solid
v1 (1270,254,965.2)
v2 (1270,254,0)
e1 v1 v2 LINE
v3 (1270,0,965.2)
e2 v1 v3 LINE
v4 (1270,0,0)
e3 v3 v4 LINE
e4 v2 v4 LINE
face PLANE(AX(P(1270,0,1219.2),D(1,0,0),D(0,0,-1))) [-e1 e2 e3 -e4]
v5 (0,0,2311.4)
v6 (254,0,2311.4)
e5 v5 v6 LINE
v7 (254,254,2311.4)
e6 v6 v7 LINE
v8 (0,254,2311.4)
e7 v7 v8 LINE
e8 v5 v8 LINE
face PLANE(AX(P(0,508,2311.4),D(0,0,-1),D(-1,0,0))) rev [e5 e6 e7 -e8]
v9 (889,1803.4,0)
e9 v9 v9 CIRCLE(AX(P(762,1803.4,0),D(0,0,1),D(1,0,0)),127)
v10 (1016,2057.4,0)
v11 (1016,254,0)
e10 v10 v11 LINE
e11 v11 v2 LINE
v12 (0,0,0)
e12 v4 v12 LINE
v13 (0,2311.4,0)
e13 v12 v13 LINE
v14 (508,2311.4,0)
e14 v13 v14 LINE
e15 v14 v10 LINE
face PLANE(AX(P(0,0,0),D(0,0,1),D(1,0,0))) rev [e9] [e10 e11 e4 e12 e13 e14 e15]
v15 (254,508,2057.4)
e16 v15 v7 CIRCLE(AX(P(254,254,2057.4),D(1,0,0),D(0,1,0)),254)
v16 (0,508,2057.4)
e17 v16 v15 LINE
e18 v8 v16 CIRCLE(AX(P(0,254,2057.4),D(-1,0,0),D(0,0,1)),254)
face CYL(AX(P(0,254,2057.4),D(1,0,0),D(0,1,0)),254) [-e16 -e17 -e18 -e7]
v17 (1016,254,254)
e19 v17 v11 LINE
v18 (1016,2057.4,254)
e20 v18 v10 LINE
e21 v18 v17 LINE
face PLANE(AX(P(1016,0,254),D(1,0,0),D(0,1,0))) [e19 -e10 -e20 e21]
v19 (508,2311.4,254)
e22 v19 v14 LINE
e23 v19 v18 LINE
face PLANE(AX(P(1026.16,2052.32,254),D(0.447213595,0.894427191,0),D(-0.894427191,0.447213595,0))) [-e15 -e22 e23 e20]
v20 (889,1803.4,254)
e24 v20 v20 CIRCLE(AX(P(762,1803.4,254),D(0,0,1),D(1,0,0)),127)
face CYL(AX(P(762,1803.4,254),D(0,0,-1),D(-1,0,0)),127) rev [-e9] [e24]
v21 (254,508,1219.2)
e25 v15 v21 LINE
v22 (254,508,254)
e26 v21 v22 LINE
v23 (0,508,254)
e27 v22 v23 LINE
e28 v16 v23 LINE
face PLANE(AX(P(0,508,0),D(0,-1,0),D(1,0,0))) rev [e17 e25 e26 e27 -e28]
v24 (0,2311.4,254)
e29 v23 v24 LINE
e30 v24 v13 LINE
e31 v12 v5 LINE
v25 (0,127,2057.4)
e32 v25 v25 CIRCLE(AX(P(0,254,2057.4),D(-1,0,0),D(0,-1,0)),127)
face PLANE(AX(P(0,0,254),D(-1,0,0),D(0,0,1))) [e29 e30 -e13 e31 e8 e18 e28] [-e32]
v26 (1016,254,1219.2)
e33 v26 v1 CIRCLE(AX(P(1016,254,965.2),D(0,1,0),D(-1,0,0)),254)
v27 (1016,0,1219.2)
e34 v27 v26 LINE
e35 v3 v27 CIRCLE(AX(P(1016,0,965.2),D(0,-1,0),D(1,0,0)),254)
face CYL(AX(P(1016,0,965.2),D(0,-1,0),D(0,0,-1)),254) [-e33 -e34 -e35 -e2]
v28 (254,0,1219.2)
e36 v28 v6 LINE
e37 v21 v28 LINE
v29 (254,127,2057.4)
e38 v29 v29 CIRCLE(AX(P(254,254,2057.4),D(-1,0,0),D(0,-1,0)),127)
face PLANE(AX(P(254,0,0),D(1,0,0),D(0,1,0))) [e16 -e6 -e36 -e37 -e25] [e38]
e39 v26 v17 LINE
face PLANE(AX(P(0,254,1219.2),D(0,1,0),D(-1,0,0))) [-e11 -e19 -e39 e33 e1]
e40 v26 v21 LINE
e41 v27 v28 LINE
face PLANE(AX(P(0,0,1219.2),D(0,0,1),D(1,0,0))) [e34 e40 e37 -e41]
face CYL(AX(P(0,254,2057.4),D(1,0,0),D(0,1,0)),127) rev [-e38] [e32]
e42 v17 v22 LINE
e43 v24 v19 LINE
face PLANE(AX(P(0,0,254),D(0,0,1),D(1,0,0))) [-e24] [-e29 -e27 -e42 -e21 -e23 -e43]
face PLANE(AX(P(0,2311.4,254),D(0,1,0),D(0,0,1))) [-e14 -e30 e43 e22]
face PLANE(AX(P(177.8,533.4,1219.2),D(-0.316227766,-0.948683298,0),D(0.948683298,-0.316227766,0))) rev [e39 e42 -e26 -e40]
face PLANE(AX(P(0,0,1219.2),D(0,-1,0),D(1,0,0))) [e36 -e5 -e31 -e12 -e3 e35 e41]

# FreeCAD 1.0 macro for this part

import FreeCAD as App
import Part
import Sketcher

V = App.Vector
Q = App.Units.Quantity


def edges_at(feature, points):
    """Names of the edges that pass closest to the given points."""
    edges = feature.Shape.Edges
    near = lambda p: min(range(len(edges)), key=lambda i: edges[i].distToShape(Part.Vertex(*p))[0])
    return sorted({f"Edge{near(p) + 1}" for p in points})


def add_polygon(sketch, points):
    """Adds a closed chain of lines whose ends are joined by coincident constraints."""
    first, n = sketch.GeometryCount, len(points)
    for a, b in zip(points, points[1:] + points[:1]):
        sketch.addGeometry(Part.LineSegment(App.Vector(*a, 0), App.Vector(*b, 0)), False)
    for i in range(n):
        sketch.addConstraint(Sketcher.Constraint("Coincident", first + i, 2, first + (i + 1) % n, 1))

doc = App.newDocument("Part")
params = doc.addObject("Spreadsheet::Sheet", "Params")
for row, (alias, value) in enumerate([
    ("sketch1_diameter", "10 in"),
    ("sketch1_width", "10 in"),
    ("sketch1_width2", "20 in"),
    ("sketch1_height", "71 in"),
    ("pad1_length", "10 in"),
    ("sketch2_width", "40 in"),
    ("sketch2_width2", "10 in"),
    ("sketch2_height", "20 in"),
    ("pad2_length", "48 in"),
    ("fillet_radius", "10 in"),
    ("sketch3_diameter", "10 in"),
    ("sketch3_width", "20 in"),
    ("sketch3_height", "91 in"),
    ("pad3_length", "10 in"),
    ("fillet2_radius", "10 in"),
], start=1):
    params.set(f"A{row}", alias)
    params.set(f"B{row}", "=" + value)
    params.setAlias(f"B{row}", alias)

body = doc.addObject("PartDesign::Body", "Body")

sketch1 = body.newObject("Sketcher::SketchObject", "Sketch")
sketch1.AttachmentSupport = (doc.getObject("XY_Plane"), [""])
sketch1.MapMode = "FlatFace"
add_polygon(sketch1, [(0, 2311), (0, 508), (254, 508), (1016, 254), (1016, 2057), (508, 2311)])
sketch1.addGeometry(Part.Circle(V(762, 1803, 0), V(0, 0, 1), 127), False)
sketch1.addConstraint([
    Sketcher.Constraint("Vertical", 0),
    Sketcher.Constraint("Horizontal", 1),
    Sketcher.Constraint("Vertical", 3),
    Sketcher.Constraint("Horizontal", 5),
    Sketcher.Constraint("PointOnObject", 0, 2, -2),
    Sketcher.Constraint("Equal", 0, 3),
    Sketcher.Constraint("Diameter", 6, Q("10 in")),
    Sketcher.Constraint("DistanceX", 1, 1, 1, 2, Q("10 in")),
    Sketcher.Constraint("DistanceX", 5, 2, 5, 1, Q("20 in")),
    Sketcher.Constraint("DistanceY", 0, 2, 0, 1, Q("71 in")),
    Sketcher.Constraint("DistanceX", -1, 1, 6, 3, Q("30 in")),
    Sketcher.Constraint("DistanceY", -1, 1, 6, 3, Q("71 in")),
    Sketcher.Constraint("DistanceY", -1, 1, 0, 2, Q("20 in")),
    Sketcher.Constraint("DistanceX", -1, 1, 2, 2, Q("40 in")),
    Sketcher.Constraint("DistanceY", -1, 1, 2, 2, Q("10 in")),
])
sketch1.setExpression("Constraints[12]", "Params.sketch1_diameter")
sketch1.setExpression("Constraints[13]", "Params.sketch1_width")
sketch1.setExpression("Constraints[14]", "Params.sketch1_width2")
sketch1.setExpression("Constraints[15]", "Params.sketch1_height")
pad1 = body.newObject("PartDesign::Pad", "Pad")
pad1.Profile = sketch1
pad1.setExpression("Length", "Params.pad1_length")

sketch2 = body.newObject("Sketcher::SketchObject", "Sketch001")
sketch2.AttachmentSupport = (doc.getObject("XY_Plane"), [""])
sketch2.MapMode = "FlatFace"
add_polygon(sketch2, [(254, 508), (254, 0), (1270, 0), (1270, 254), (1016, 254)])
sketch2.addConstraint([
    Sketcher.Constraint("Vertical", 0),
    Sketcher.Constraint("Horizontal", 1),
    Sketcher.Constraint("Vertical", 2),
    Sketcher.Constraint("Horizontal", 3),
    Sketcher.Constraint("PointOnObject", 0, 2, -1),
    Sketcher.Constraint("Equal", 3, 2),
    Sketcher.Constraint("DistanceX", 1, 1, 1, 2, Q("40 in")),
    Sketcher.Constraint("DistanceX", 3, 2, 3, 1, Q("10 in")),
    Sketcher.Constraint("DistanceY", 0, 2, 0, 1, Q("20 in")),
    Sketcher.Constraint("DistanceX", -1, 1, 0, 2, Q("10 in")),
])
sketch2.setExpression("Constraints[11]", "Params.sketch2_width")
sketch2.setExpression("Constraints[12]", "Params.sketch2_width2")
sketch2.setExpression("Constraints[13]", "Params.sketch2_height")
pad2 = body.newObject("PartDesign::Pad", "Pad001")
pad2.Profile = sketch2
pad2.setExpression("Length", "Params.pad2_length")
doc.recompute()

fillet = body.newObject("PartDesign::Fillet", "Fillet")
fillet.Base = (pad2, edges_at(pad2, [(1270, 127, 1219.2)]))
fillet.setExpression("Radius", "Params.fillet_radius")

sketch3 = body.newObject("Sketcher::SketchObject", "Sketch002")
sketch3.AttachmentSupport = (doc.getObject("YZ_Plane"), [""])
sketch3.MapMode = "FlatFace"
sketch3.AttachmentOffset = App.Placement(V(0, 0, 10 * 25.4), App.Rotation())
add_polygon(sketch3, [(508, 0), (0, 0), (0, 2311), (508, 2311)])
sketch3.addGeometry(Part.Circle(V(254, 2057, 0), V(0, 0, 1), 127), False)
sketch3.addConstraint([
    Sketcher.Constraint("Horizontal", 0),
    Sketcher.Constraint("Vertical", 1),
    Sketcher.Constraint("Horizontal", 2),
    Sketcher.Constraint("Vertical", 3),
    Sketcher.Constraint("Coincident", 0, 2, -1, 1),
    Sketcher.Constraint("Diameter", 4, Q("10 in")),
    Sketcher.Constraint("DistanceX", 0, 2, 0, 1, Q("20 in")),
    Sketcher.Constraint("DistanceY", 1, 1, 1, 2, Q("91 in")),
    Sketcher.Constraint("DistanceX", -1, 1, 4, 3, Q("10 in")),
    Sketcher.Constraint("DistanceY", -1, 1, 4, 3, Q("81 in")),
])
sketch3.setExpression("Constraints[9]", "Params.sketch3_diameter")
sketch3.setExpression("Constraints[10]", "Params.sketch3_width")
sketch3.setExpression("Constraints[11]", "Params.sketch3_height")
pad3 = body.newObject("PartDesign::Pad", "Pad002")
pad3.Profile = sketch3
pad3.setExpression("Length", "Params.pad3_length")
pad3.Reversed = True
doc.recompute()

fillet2 = body.newObject("PartDesign::Fillet", "Fillet001")
fillet2.Base = (pad3, edges_at(pad3, [(127, 508, 2311.4)]))
fillet2.setExpression("Radius", "Params.fillet2_radius")

doc.recompute()
